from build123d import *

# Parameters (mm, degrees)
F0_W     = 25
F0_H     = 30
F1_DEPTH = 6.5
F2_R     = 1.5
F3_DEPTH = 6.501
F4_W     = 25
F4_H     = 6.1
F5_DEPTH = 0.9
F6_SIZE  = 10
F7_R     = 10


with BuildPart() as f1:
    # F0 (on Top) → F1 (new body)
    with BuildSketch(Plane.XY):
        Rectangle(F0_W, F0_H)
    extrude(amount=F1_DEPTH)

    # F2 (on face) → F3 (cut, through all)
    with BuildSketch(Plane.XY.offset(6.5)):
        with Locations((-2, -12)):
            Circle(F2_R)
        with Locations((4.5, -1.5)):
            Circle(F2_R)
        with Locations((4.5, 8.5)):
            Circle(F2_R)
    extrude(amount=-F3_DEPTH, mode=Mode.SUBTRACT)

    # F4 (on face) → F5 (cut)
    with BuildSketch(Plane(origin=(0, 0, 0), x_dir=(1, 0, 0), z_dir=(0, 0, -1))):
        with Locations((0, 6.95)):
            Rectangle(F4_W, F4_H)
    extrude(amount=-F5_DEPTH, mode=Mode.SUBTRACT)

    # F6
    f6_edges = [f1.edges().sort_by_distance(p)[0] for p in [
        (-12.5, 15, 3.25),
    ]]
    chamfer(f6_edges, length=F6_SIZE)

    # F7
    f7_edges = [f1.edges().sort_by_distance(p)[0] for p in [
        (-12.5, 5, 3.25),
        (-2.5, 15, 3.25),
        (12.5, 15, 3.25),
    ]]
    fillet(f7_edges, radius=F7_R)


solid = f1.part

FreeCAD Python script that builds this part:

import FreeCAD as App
import Part
import Sketcher
from FreeCAD import Vector


def edges_at(feature, points):
    """Names of the edges that pass closest to the given points."""
    edges = feature.Shape.Edges
    near = lambda p: min(range(len(edges)), key=lambda i: edges[i].distToShape(Part.Vertex(*p))[0])
    return sorted({f"Edge{near(p) + 1}" for p in points})


def add_polygon(sketch, points):
    """Adds a closed chain of lines whose ends are joined by coincident constraints."""
    first, n = sketch.GeometryCount, len(points)
    for a, b in zip(points, points[1:] + points[:1]):
        sketch.addGeometry(Part.LineSegment(App.Vector(*a, 0), App.Vector(*b, 0)), False)
    for i in range(n):
        sketch.addConstraint(Sketcher.Constraint("Coincident", first + i, 2, first + (i + 1) % n, 1))

doc = App.newDocument("Part")
body = doc.addObject("PartDesign::Body", "Body")

# Sketch on XY plane
sketch1 = body.newObject("Sketcher::SketchObject", "Sketch")
sketch1.AttachmentSupport = (doc.getObject("XY_Plane"), [""])
sketch1.MapMode = "FlatFace"
add_polygon(sketch1, [(-12, 15), (-12, -15), (12, -15), (12, 15)])  # lines 0-3
sketch1.addConstraint([
    Sketcher.Constraint("Vertical", 0),
    Sketcher.Constraint("Horizontal", 1),
    Sketcher.Constraint("Vertical", 2),
    Sketcher.Constraint("Horizontal", 3),
    Sketcher.Constraint("Symmetric", 0, 2, 2, 2, -1, 1),
    Sketcher.Constraint("DistanceX", 1, 1, 1, 2, 25.0),
    Sketcher.Constraint("DistanceY", 0, 2, 0, 1, 30.0),
])
pad1 = body.newObject("PartDesign::Pad", "Pad")
pad1.Profile = sketch1
pad1.Length = 6.5

# Sketch on XY plane
sketch2 = body.newObject("Sketcher::SketchObject", "Sketch001")
sketch2.AttachmentSupport = (doc.getObject("XY_Plane"), [""])
sketch2.MapMode = "FlatFace"
sketch2.AttachmentOffset = App.Placement(Vector(0, 0, 6.5), App.Rotation())
sketch2.addGeometry([
    Part.Circle(Vector(-2, -12, 0), Vector(0, 0, 1), 1.5),
    Part.Circle(Vector(4.5, -1.5, 0), Vector(0, 0, 1), 1.5),
    Part.Circle(Vector(4.5, 8.5, 0), Vector(0, 0, 1), 1.5),
], False)
sketch2.addConstraint([
    Sketcher.Constraint("Equal", 0, 1),
    Sketcher.Constraint("Equal", 1, 2),
    Sketcher.Constraint("Vertical", 1, 3, 2, 3),
    Sketcher.Constraint("Diameter", 0, 3.0),
    Sketcher.Constraint("DistanceX", 0, 3, -1, 1, 2.0),
    Sketcher.Constraint("DistanceY", 0, 3, -1, 1, 12.0),
    Sketcher.Constraint("DistanceY", 1, 3, 2, 3, 10.0),
    Sketcher.Constraint("DistanceX", -1, 1, 1, 3, 4.5),
    Sketcher.Constraint("DistanceY", 1, 3, -1, 1, 1.5),
])
pocket1 = body.newObject("PartDesign::Pocket", "Pocket")
pocket1.Profile = sketch2
pocket1.Type = "ThroughAll"

# Sketch on XY plane
sketch3 = body.newObject("Sketcher::SketchObject", "Sketch002")
sketch3.AttachmentSupport = (doc.getObject("XY_Plane"), [""])
sketch3.MapMode = "FlatFace"
add_polygon(sketch3, [(-12, -10), (-12, -4), (12, -4), (12, -10)])  # lines 0-3
sketch3.addConstraint([
    Sketcher.Constraint("Vertical", 0),
    Sketcher.Constraint("Horizontal", 1),
    Sketcher.Constraint("Vertical", 2),
    Sketcher.Constraint("Horizontal", 3),
    Sketcher.Constraint("DistanceX", 1, 1, 1, 2, 25.0),
    Sketcher.Constraint("DistanceY", 0, 1, 0, 2, 6.1),
    Sketcher.Constraint("DistanceY", 2, 2, -1, 1, 10.0),
    Sketcher.Constraint("DistanceX", 0, 2, -1, 1, 12.5),
])
pocket2 = body.newObject("PartDesign::Pocket", "Pocket001")
pocket2.Profile = sketch3
pocket2.Length = 0.9
pocket2.Reversed = True
doc.recompute()

chamfer = body.newObject("PartDesign::Chamfer", "Chamfer")
chamfer.Base = (pocket2, edges_at(pocket2, [(-12.5, 15, 3.25)]))
chamfer.Size = 10
doc.recompute()

fillet = body.newObject("PartDesign::Fillet", "Fillet")
fillet.Base = (chamfer, edges_at(chamfer, [(-12.5, 5, 3.25), (-2.5, 15, 3.25), (12.5, 15, 3.25)]))
fillet.Radius = 10

doc.recompute()
